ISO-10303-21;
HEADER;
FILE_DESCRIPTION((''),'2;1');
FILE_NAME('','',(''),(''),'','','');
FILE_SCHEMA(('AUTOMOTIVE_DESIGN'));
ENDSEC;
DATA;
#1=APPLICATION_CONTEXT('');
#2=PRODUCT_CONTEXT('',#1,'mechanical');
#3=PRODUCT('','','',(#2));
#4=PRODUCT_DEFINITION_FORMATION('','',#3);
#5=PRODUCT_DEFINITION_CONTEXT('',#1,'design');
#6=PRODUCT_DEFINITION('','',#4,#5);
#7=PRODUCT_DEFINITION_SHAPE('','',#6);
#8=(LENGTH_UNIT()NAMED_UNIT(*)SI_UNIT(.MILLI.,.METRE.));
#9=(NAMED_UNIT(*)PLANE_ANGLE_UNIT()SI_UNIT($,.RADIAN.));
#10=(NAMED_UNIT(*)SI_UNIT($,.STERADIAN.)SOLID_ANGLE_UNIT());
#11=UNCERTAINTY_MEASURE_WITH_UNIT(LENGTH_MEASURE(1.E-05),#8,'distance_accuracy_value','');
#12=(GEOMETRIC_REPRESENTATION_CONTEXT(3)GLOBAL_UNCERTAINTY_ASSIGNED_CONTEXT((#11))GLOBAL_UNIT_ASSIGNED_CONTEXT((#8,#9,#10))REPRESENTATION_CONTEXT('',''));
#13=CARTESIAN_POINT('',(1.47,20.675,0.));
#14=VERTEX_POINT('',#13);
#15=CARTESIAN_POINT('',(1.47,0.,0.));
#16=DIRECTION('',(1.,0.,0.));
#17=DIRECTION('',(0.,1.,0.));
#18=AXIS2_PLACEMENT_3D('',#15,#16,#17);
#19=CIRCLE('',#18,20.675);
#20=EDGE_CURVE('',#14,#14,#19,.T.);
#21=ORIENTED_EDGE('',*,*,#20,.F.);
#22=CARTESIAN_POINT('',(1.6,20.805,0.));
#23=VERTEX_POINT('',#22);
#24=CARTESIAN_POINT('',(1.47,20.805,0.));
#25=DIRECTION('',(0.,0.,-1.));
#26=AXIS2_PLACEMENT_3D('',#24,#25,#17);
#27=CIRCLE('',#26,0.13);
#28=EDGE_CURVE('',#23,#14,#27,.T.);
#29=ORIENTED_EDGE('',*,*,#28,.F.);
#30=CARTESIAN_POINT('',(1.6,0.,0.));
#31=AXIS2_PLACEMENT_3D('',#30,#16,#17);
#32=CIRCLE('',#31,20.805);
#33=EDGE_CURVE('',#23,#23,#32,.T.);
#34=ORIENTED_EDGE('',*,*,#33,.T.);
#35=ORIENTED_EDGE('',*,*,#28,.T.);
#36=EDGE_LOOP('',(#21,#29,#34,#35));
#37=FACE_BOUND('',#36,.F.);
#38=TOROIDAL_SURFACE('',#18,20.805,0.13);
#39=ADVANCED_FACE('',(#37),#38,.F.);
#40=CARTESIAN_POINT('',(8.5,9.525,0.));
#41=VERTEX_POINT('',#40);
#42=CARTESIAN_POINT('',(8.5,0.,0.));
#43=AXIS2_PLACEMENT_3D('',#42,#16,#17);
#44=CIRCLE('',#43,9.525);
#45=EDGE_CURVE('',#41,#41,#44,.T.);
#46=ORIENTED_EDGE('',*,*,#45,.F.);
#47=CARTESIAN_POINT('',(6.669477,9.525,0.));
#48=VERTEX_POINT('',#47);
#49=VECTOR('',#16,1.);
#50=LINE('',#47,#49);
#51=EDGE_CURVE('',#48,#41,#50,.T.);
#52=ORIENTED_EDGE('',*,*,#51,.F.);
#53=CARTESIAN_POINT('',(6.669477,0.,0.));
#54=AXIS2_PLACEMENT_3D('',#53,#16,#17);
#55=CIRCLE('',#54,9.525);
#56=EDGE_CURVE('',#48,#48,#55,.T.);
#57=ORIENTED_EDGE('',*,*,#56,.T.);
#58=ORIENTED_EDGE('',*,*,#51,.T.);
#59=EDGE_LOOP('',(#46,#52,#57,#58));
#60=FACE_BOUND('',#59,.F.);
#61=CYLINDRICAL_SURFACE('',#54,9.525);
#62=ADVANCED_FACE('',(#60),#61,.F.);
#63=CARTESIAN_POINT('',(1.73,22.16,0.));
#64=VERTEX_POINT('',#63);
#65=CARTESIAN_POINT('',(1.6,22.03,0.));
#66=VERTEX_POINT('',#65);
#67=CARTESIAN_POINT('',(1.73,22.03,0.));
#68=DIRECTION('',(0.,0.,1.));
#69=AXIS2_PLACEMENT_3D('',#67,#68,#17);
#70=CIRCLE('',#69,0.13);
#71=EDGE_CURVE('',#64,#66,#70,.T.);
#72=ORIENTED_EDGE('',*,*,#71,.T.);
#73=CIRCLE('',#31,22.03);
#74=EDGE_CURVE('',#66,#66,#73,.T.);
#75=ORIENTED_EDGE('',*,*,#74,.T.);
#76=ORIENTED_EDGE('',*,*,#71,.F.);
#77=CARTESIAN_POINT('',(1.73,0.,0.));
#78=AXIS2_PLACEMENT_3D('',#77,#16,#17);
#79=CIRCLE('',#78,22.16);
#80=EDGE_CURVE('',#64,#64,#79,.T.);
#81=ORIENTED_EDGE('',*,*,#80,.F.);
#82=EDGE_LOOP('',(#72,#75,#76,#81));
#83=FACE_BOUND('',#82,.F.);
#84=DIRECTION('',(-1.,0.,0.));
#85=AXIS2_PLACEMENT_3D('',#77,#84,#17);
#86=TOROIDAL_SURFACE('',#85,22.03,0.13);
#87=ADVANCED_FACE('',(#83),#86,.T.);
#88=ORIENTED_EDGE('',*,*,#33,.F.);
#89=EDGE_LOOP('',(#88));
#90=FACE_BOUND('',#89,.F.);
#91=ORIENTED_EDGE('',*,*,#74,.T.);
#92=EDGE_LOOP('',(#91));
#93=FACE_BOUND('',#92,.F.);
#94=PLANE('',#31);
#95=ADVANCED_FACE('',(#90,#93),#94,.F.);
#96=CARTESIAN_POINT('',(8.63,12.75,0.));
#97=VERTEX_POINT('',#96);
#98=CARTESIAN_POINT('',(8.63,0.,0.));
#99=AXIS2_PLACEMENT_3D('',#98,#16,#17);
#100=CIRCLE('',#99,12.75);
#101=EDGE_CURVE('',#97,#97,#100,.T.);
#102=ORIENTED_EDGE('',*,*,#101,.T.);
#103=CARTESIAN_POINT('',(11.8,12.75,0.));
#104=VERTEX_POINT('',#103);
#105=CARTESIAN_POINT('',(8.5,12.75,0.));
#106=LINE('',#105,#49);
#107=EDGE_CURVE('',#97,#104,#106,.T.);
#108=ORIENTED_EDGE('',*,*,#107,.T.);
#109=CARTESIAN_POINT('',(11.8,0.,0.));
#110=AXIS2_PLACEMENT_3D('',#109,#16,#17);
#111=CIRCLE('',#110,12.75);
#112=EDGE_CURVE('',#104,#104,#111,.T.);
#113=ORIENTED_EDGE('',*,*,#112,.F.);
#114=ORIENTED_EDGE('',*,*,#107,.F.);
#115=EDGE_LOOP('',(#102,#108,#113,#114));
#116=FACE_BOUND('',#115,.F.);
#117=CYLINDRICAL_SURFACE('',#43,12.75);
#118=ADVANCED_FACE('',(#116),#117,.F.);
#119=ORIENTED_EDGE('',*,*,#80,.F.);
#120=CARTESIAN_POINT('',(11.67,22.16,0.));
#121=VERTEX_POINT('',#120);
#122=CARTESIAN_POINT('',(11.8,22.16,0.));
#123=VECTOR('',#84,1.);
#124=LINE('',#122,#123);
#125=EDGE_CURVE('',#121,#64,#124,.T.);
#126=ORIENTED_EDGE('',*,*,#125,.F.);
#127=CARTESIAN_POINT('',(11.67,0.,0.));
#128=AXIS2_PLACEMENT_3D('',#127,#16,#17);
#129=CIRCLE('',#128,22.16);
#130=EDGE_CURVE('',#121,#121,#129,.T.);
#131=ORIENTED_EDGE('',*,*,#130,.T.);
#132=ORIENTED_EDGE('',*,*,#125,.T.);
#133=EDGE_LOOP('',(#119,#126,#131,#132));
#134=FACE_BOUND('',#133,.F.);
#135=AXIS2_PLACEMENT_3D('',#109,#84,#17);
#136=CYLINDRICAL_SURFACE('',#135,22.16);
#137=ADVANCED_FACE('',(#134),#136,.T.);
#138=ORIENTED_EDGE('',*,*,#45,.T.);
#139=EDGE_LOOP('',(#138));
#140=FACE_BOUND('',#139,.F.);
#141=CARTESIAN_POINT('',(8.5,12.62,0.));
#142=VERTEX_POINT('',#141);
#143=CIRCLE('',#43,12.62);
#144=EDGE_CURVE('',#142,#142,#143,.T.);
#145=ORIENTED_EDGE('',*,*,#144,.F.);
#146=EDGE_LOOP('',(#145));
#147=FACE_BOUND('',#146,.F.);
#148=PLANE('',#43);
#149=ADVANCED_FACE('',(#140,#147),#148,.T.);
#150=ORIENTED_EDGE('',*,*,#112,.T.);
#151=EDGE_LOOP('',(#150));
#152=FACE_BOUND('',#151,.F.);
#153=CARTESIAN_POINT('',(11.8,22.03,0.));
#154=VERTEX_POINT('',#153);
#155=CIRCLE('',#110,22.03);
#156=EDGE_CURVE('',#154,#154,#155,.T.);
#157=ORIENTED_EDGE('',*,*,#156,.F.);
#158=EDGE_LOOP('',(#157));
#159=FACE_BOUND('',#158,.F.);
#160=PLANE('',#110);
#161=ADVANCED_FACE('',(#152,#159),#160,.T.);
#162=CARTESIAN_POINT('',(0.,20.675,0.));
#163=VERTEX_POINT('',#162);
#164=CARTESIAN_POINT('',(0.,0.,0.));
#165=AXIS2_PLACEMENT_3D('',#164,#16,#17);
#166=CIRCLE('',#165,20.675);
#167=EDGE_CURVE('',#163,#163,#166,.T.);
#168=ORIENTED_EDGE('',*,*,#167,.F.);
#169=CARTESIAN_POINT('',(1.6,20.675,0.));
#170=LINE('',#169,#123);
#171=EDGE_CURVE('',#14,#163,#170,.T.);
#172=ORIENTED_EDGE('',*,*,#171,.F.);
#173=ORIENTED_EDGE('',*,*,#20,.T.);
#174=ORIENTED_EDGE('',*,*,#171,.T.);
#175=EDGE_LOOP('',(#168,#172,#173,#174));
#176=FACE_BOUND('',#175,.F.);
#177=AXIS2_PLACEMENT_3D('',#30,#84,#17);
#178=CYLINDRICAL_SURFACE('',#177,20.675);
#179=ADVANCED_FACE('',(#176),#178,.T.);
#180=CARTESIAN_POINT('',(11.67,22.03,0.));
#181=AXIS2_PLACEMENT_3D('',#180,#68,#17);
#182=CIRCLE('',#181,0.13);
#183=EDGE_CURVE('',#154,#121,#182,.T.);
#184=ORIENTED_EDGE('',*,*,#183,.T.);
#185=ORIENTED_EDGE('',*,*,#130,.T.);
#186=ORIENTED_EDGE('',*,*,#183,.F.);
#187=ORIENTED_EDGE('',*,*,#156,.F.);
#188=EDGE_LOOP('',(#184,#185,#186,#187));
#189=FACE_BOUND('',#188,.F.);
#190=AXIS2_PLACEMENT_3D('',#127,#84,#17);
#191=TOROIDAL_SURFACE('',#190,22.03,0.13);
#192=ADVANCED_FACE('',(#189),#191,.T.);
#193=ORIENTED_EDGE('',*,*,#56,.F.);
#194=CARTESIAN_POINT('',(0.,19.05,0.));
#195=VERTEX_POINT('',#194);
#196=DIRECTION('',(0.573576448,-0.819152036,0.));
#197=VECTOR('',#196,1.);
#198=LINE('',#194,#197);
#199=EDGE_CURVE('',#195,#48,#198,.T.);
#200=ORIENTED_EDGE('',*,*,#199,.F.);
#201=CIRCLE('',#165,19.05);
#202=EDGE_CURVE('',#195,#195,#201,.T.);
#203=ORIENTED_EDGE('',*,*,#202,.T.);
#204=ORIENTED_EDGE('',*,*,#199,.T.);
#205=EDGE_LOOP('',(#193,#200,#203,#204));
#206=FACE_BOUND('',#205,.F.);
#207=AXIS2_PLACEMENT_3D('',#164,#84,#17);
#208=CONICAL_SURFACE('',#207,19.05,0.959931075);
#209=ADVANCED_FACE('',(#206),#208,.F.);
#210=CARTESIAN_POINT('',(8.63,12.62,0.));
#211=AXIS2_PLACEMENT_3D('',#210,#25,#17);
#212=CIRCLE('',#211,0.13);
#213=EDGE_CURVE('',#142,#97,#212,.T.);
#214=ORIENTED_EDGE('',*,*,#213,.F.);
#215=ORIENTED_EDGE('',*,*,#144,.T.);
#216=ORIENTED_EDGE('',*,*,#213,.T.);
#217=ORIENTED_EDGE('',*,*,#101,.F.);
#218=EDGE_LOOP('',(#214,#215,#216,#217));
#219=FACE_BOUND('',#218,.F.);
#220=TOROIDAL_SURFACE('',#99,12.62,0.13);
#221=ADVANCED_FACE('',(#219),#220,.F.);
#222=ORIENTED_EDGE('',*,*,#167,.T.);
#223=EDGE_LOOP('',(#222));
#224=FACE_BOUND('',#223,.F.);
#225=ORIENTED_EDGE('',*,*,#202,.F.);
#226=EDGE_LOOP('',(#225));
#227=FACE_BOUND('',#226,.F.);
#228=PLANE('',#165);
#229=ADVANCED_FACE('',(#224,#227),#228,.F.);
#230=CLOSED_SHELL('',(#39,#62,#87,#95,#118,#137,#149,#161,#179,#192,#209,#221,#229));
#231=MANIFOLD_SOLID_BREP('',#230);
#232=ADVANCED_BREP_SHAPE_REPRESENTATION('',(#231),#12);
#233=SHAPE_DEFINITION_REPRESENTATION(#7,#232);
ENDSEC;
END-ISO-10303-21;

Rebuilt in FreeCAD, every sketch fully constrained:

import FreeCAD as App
import Part
import Sketcher

V = App.Vector
Q = App.Units.Quantity


def edges_at(feature, points):
    """Names of the edges that pass closest to the given points."""
    edges = feature.Shape.Edges
    near = lambda p: min(range(len(edges)), key=lambda i: edges[i].distToShape(Part.Vertex(*p))[0])
    return sorted({f"Edge{near(p) + 1}" for p in points})

doc = App.newDocument("Part")
params = doc.addObject("Spreadsheet::Sheet", "Params")
for row, (alias, value) in enumerate([
    ("sketch1_width", "10.2 mm"),
    ("sketch1_width2", "1.6 mm"),
    ("sketch1_width3", "3.3 mm"),
    ("sketch1_height", "9.41 mm"),
    ("revolution_angle", "360 deg"),
    ("fillet_radius", "0.13 mm"),
], start=1):
    params.set(f"A{row}", alias)
    params.set(f"B{row}", "=" + value)
    params.setAlias(f"B{row}", alias)

body = doc.addObject("PartDesign::Body", "Body")

sketch1 = body.newObject("Sketcher::SketchObject", "Sketch")
sketch1.AttachmentSupport = (doc.getObject("XY_Plane"), [""])
sketch1.MapMode = "FlatFace"
sketch1.addGeometry([
    Part.LineSegment(V(11.8, 12.75, 0), V(11.8, 22.16, 0)),
    Part.LineSegment(V(11.8, 22.16, 0), V(1.6, 22.16, 0)),
    Part.LineSegment(V(1.6, 22.16, 0), V(1.6, 20.675, 0)),
    Part.LineSegment(V(1.6, 20.675, 0), V(0, 20.675, 0)),
    Part.LineSegment(V(0, 20.675, 0), V(0, 19.05, 0)),
    Part.LineSegment(V(0, 19.05, 0), V(6.669477, 9.525, 0)),
    Part.LineSegment(V(6.669477, 9.525, 0), V(8.5, 9.525, 0)),
    Part.LineSegment(V(8.5, 9.525, 0), V(8.5, 12.75, 0)),
    Part.LineSegment(V(8.5, 12.75, 0), V(11.8, 12.75, 0)),
], False)
sketch1.addConstraint([
    Sketcher.Constraint("Coincident", 0, 2, 1, 1),
    Sketcher.Constraint("Coincident", 1, 2, 2, 1),
    Sketcher.Constraint("Coincident", 2, 2, 3, 1),
    Sketcher.Constraint("Coincident", 3, 2, 4, 1),
    Sketcher.Constraint("Coincident", 4, 2, 5, 1),
    Sketcher.Constraint("Coincident", 5, 2, 6, 1),
    Sketcher.Constraint("Coincident", 6, 2, 7, 1),
    Sketcher.Constraint("Coincident", 7, 2, 8, 1),
    Sketcher.Constraint("Coincident", 8, 2, 0, 1),
    Sketcher.Constraint("Vertical", 0),
    Sketcher.Constraint("Horizontal", 1),
    Sketcher.Constraint("Vertical", 2),
    Sketcher.Constraint("Horizontal", 3),
    Sketcher.Constraint("Vertical", 4),
    Sketcher.Constraint("Horizontal", 6),
    Sketcher.Constraint("Vertical", 7),
    Sketcher.Constraint("Horizontal", 8),
    Sketcher.Constraint("PointOnObject", 3, 2, -2),
    Sketcher.Constraint("Angle", 5, Q("-54.999999 deg")),
    Sketcher.Constraint("DistanceX", 1, 2, 1, 1, 10.2),
    Sketcher.Constraint("DistanceX", 3, 2, 3, 1, 1.6),
    Sketcher.Constraint("DistanceX", 8, 1, 8, 2, 3.3),
    Sketcher.Constraint("DistanceY", 0, 1, 0, 2, 9.41),
    Sketcher.Constraint("DistanceY", 7, 2, 4, 2, 6.3),
    Sketcher.Constraint("DistanceY", 2, 2, 2, 1, 1.485),
    Sketcher.Constraint("DistanceY", 7, 1, 7, 2, 3.225),
    Sketcher.Constraint("DistanceY", -1, 1, 0, 2, 22.16),
])
sketch1.setExpression("Constraints[19]", "Params.sketch1_width")
sketch1.setExpression("Constraints[20]", "Params.sketch1_width2")
sketch1.setExpression("Constraints[21]", "Params.sketch1_width3")
sketch1.setExpression("Constraints[22]", "Params.sketch1_height")
revolution = body.newObject("PartDesign::Revolution", "Revolution")
revolution.Profile = sketch1
revolution.ReferenceAxis = (sketch1, ["H_Axis"])
revolution.setExpression("Angle", "Params.revolution_angle")
doc.recompute()

fillet = body.newObject("PartDesign::Fillet", "Fillet")
fillet.Base = (revolution, edges_at(revolution, [
    (1.6, -20.675, 0),
    (8.5, -12.75, 0),
    (11.8, -22.16, 0),
    (1.6, -22.16, 0),
]))
fillet.setExpression("Radius", "Params.fillet_radius")

doc.recompute()
